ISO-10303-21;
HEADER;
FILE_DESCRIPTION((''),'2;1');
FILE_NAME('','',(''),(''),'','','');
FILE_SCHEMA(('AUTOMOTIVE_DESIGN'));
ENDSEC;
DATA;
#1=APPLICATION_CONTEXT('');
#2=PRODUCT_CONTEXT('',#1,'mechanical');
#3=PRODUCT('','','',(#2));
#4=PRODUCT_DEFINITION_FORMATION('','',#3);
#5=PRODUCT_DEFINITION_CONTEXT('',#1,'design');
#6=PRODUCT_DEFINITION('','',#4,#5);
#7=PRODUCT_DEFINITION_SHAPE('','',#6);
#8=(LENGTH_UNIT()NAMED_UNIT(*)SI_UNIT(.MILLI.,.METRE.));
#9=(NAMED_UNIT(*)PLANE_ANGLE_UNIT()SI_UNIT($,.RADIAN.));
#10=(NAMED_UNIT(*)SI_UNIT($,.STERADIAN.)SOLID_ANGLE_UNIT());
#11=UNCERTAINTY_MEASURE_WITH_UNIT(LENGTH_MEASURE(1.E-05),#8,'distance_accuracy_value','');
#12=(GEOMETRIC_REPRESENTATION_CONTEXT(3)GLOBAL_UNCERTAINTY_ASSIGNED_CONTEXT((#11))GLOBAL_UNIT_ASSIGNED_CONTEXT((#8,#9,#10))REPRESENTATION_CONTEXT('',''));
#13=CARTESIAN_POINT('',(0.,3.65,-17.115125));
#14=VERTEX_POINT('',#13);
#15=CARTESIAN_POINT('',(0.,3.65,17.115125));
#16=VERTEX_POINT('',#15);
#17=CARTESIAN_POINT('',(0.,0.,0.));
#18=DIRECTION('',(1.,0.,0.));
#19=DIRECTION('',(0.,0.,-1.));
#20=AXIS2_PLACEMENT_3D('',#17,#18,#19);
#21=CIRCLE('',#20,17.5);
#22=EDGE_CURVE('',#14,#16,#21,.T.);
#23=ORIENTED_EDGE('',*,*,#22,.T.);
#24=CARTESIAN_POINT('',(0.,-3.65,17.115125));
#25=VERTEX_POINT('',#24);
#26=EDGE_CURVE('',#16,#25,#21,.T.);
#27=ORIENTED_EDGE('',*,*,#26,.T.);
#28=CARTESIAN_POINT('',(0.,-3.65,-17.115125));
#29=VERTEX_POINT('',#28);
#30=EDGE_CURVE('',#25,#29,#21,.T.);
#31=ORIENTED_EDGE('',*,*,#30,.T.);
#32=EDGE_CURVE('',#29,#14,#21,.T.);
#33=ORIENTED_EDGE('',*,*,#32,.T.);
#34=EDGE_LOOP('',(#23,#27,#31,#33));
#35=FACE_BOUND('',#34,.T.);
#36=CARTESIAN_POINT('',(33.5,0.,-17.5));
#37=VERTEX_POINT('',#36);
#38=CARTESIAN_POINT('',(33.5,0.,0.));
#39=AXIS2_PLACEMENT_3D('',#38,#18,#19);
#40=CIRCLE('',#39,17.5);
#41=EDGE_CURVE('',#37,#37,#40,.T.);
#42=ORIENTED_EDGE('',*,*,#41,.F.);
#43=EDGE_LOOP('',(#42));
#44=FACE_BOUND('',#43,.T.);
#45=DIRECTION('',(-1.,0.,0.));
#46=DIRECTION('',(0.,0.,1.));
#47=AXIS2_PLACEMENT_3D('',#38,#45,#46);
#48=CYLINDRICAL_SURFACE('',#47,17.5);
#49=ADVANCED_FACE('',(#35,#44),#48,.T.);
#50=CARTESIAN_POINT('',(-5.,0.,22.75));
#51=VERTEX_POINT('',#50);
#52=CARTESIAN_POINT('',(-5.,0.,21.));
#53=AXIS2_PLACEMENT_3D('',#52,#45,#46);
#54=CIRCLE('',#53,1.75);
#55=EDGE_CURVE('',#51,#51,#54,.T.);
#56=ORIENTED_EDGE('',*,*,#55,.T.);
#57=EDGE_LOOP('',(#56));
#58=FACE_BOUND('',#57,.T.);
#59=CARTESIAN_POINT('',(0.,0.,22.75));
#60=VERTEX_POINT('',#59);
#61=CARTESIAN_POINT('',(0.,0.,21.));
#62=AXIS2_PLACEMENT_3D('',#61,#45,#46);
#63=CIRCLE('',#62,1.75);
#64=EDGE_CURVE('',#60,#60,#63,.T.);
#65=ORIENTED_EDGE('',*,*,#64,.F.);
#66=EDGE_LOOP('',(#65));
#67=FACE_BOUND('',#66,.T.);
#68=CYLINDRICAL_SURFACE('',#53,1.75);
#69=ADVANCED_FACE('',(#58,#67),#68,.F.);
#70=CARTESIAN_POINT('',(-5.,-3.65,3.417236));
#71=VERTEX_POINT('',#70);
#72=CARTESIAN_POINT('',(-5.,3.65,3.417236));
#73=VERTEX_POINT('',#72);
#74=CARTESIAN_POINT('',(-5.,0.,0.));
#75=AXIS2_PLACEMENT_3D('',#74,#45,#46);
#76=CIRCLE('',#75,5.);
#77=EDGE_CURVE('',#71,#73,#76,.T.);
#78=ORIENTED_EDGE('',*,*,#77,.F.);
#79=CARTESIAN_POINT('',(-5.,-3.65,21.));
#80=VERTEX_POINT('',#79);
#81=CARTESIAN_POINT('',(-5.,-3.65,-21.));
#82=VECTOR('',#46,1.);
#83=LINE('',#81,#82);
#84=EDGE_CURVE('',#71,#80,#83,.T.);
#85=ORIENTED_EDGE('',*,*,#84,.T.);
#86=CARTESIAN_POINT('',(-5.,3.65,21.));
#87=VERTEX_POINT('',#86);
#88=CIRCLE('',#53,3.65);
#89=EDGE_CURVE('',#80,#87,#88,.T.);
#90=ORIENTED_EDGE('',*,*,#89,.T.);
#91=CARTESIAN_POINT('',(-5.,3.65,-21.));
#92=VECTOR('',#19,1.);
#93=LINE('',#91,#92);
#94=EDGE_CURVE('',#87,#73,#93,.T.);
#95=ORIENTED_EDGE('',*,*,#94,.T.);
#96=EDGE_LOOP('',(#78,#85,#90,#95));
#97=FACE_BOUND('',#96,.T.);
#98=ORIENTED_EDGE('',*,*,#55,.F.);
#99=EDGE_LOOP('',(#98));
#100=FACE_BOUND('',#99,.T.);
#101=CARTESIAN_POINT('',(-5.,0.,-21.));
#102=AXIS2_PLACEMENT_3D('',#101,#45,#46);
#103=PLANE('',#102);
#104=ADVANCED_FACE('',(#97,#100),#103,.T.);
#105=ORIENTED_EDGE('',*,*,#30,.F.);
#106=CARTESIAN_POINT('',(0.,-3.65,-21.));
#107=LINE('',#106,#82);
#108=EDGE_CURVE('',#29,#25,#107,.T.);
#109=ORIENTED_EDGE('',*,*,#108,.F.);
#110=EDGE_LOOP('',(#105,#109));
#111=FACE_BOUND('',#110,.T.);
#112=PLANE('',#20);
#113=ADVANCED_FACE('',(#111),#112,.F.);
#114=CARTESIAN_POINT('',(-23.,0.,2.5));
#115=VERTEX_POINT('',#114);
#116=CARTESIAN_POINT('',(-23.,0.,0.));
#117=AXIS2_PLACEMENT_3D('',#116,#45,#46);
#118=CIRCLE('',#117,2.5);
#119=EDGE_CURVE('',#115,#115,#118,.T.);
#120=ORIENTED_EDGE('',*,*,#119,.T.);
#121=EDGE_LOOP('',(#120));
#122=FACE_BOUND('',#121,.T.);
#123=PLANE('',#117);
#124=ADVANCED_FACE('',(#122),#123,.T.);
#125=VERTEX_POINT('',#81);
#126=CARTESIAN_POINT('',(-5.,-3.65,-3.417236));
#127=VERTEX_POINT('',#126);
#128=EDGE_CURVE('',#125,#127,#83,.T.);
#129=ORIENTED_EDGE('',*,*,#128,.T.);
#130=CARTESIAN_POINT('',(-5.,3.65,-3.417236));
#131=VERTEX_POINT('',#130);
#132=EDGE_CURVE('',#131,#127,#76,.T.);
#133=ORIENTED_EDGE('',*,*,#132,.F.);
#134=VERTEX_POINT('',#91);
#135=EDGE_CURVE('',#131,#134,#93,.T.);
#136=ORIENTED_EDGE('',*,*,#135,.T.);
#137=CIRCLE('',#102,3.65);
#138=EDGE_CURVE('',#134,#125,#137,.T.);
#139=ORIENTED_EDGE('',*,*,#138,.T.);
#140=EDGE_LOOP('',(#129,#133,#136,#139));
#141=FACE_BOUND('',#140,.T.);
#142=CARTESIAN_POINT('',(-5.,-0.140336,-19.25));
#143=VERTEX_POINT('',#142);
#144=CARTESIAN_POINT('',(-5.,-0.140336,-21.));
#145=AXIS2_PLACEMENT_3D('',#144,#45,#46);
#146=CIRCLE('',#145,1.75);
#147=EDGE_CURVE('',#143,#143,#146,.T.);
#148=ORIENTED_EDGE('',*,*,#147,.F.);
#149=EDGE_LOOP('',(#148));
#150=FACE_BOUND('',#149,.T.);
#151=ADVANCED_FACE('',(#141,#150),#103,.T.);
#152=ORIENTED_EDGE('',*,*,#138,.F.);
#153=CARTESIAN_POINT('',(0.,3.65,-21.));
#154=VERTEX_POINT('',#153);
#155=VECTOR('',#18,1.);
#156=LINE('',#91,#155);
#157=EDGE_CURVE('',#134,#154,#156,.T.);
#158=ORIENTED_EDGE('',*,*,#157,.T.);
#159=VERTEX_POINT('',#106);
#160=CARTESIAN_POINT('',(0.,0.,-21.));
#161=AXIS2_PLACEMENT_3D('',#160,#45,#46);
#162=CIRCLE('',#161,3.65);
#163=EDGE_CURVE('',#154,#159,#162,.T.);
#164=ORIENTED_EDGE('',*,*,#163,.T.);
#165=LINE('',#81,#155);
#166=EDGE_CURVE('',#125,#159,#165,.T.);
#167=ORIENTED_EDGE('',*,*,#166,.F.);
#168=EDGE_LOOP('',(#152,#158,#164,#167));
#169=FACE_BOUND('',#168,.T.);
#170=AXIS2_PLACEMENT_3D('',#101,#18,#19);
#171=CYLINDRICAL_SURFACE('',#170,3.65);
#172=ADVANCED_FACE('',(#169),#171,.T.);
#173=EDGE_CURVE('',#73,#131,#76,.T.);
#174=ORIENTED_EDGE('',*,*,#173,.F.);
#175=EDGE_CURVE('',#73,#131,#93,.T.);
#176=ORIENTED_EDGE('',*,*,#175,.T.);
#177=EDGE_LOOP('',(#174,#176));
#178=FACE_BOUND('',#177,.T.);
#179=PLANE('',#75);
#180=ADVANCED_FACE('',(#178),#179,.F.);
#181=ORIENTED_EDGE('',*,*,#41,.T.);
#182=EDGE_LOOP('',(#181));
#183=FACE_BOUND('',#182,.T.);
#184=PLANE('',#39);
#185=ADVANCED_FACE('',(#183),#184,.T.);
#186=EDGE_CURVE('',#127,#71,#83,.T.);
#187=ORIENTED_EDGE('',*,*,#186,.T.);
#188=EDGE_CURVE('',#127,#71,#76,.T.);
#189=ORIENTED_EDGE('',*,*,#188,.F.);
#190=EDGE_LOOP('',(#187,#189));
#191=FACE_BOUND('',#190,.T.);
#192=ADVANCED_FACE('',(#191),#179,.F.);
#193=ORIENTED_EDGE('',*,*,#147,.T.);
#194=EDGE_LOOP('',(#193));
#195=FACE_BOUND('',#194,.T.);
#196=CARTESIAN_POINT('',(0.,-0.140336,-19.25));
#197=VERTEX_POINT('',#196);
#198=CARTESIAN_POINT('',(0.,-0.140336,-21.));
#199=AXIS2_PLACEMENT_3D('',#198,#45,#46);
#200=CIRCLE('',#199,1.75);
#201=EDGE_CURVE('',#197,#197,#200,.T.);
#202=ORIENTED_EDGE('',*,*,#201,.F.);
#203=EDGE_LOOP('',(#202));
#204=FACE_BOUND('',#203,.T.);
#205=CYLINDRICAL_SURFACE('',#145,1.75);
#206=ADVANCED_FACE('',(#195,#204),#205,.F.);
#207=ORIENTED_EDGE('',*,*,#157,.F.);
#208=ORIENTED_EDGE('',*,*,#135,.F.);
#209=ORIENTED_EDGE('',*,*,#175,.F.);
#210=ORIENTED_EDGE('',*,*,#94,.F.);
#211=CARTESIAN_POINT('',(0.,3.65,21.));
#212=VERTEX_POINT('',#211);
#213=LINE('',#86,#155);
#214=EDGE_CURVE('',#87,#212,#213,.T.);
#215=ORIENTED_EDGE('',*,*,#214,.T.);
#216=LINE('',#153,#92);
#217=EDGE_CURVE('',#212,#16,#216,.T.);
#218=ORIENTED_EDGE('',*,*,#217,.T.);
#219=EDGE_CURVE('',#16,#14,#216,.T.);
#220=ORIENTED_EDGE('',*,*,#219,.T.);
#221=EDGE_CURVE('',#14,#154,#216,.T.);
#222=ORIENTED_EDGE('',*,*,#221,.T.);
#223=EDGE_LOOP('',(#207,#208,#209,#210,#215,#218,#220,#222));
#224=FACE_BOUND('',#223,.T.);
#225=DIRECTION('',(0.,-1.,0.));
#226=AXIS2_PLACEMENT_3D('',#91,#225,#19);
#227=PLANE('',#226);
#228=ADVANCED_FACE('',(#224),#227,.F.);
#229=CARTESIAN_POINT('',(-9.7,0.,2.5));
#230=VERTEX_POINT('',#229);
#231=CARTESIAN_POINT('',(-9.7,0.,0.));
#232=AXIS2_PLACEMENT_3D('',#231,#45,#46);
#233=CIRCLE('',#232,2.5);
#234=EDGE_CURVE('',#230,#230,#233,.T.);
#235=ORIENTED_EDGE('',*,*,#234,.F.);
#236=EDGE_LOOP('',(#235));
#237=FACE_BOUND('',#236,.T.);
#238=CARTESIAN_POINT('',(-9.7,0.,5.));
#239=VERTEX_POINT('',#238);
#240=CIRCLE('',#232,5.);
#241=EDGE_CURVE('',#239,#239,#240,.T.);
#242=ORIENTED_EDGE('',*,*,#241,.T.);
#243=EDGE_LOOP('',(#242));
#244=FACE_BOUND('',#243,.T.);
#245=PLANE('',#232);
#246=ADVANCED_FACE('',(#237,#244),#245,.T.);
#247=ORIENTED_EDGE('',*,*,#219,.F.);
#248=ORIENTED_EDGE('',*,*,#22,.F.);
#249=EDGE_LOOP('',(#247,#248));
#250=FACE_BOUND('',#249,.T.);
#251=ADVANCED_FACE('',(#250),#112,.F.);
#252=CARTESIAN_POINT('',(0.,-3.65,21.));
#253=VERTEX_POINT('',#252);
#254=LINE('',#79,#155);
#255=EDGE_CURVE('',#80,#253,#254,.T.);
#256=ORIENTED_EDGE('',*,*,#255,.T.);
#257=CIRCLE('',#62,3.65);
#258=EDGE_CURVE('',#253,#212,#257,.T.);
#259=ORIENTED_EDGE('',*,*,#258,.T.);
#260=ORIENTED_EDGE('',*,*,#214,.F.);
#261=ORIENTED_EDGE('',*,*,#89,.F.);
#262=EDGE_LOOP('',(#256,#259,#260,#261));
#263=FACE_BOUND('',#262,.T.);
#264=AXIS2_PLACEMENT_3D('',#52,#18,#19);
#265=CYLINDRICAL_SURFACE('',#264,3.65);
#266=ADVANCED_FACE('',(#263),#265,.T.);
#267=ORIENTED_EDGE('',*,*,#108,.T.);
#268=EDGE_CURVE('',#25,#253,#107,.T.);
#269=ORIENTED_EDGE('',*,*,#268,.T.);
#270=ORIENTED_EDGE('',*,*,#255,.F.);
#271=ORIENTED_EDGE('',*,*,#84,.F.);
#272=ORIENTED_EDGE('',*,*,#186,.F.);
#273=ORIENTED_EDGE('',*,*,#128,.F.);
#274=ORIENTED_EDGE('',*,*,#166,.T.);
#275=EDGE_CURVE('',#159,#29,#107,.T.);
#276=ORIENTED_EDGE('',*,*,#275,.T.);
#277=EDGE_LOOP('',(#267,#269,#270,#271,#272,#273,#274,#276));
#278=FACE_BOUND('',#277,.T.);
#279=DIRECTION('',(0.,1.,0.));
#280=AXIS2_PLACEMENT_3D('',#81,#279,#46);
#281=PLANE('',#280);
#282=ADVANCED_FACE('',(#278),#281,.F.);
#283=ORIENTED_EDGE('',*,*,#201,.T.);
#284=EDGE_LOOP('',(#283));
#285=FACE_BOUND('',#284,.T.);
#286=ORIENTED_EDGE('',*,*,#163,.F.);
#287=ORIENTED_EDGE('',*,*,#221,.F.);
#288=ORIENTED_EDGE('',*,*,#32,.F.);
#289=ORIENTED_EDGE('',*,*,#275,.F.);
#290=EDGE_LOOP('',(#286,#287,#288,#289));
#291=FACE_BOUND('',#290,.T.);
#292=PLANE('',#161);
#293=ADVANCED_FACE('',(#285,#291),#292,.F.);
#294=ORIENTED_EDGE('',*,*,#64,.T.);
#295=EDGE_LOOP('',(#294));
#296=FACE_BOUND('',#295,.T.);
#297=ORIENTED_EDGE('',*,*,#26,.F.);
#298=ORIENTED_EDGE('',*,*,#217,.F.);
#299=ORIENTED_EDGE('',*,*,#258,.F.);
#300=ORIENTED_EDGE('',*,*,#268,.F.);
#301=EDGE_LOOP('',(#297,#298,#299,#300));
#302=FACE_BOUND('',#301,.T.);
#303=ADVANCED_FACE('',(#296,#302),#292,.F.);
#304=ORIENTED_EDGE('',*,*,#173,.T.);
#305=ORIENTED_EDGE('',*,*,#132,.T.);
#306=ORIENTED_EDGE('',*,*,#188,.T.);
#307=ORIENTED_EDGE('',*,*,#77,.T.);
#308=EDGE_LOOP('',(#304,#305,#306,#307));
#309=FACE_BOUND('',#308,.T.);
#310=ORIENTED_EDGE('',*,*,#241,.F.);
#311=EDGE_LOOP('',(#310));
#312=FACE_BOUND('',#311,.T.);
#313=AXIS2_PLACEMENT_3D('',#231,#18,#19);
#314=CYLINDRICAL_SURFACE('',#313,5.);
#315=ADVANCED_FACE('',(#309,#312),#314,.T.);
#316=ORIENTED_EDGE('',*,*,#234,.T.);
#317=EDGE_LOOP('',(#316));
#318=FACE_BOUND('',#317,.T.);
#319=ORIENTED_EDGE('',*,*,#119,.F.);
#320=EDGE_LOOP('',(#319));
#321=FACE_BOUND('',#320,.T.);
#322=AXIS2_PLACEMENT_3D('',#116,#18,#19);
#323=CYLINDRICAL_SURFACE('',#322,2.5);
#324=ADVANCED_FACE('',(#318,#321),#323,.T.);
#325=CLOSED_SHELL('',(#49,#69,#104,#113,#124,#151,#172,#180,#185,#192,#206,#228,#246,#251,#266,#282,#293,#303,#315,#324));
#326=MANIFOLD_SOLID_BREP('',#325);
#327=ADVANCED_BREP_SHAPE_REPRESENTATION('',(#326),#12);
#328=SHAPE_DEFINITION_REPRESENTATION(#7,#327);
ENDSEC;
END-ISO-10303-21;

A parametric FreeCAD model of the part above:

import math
import FreeCAD as App
import Part
import Sketcher

V = App.Vector
Q = App.Units.Quantity

doc = App.newDocument("Part")
body = doc.addObject("PartDesign::Body", "Body")

# Sketch on YZ plane
sketch1 = body.newObject("Sketcher::SketchObject", "Sketch")
sketch1.AttachmentSupport = (doc.getObject("YZ_Plane"), [""])
sketch1.MapMode = "FlatFace"
sketch1.addGeometry(Part.Circle(V(0, 0, 0), V(0, 0, 1), 18), False)
sketch1.addConstraint(Sketcher.Constraint("Coincident", 0, 3, -1, 1))
sketch1.addConstraint(Sketcher.Constraint("Diameter", 0, Q("35 mm")))
pad1 = body.newObject("PartDesign::Pad", "Pad")
pad1.Profile = sketch1
pad1.Length = 33.5

# Sketch on YZ plane
sketch2 = body.newObject("Sketcher::SketchObject", "Sketch001")
sketch2.AttachmentSupport = (doc.getObject("YZ_Plane"), [""])
sketch2.MapMode = "FlatFace"
sketch2.addGeometry(Part.LineSegment(V(3.6, 21, 0), V(3.6, -21, 0)), False)
sketch2.addGeometry(Part.ArcOfCircle(Part.Circle(V(0, -21, 0), V(0, 0, 1), 3.6), math.radians(180), math.radians(360)), False)
sketch2.addGeometry(Part.LineSegment(V(-3.6, -21, 0), V(-3.6, 21, 0)), False)
sketch2.addGeometry(Part.ArcOfCircle(Part.Circle(V(0, 21, 0), V(0, 0, 1), 3.6), math.radians(0), math.radians(180)), False)
sketch2.addConstraint(Sketcher.Constraint("Tangent", 0, 2, 1, 2))
sketch2.addConstraint(Sketcher.Constraint("Tangent", 1, 1, 2, 1))
sketch2.addConstraint(Sketcher.Constraint("Tangent", 2, 2, 3, 2))
sketch2.addConstraint(Sketcher.Constraint("Tangent", 3, 1, 0, 1))
sketch2.addConstraint(Sketcher.Constraint("Vertical", 0))
sketch2.addConstraint(Sketcher.Constraint("Vertical", 2))
sketch2.addConstraint(Sketcher.Constraint("Symmetric", 1, 3, 3, 3, -1, 1))
sketch2.addConstraint(Sketcher.Constraint("DistanceY", 0, 2, 0, 1, Q("42 mm")))
sketch2.addConstraint(Sketcher.Constraint("Radius", 1, Q("3.65 mm")))
pad2 = body.newObject("PartDesign::Pad", "Pad001")
pad2.Profile = sketch2
pad2.Length = 5
pad2.Reversed = True

# Sketch on YZ plane
sketch3 = body.newObject("Sketcher::SketchObject", "Sketch002")
sketch3.AttachmentSupport = (doc.getObject("YZ_Plane"), [""])
sketch3.MapMode = "FlatFace"
sketch3.AttachmentOffset = App.Placement(V(0, 0, -5), App.Rotation())
sketch3.addGeometry(Part.Circle(V(-0.1, -21, 0), V(0, 0, 1), 1.8), False)
sketch3.addGeometry(Part.Circle(V(0, 21, 0), V(0, 0, 1), 1.8), False)
sketch3.addConstraint(Sketcher.Constraint("Equal", 0, 1))
sketch3.addConstraint(Sketcher.Constraint("PointOnObject", 1, 3, -2))
sketch3.addConstraint(Sketcher.Constraint("Diameter", 0, Q("3.5 mm")))
sketch3.addConstraint(Sketcher.Constraint("DistanceY", 0, 3, -1, 1, Q("21 mm")))
sketch3.addConstraint(Sketcher.Constraint("DistanceY", -1, 1, 1, 3, Q("21 mm")))
sketch3.addConstraint(Sketcher.Constraint("DistanceX", 0, 3, -1, 1, Q("0.140336 mm")))
doc.recompute()
hole = body.newObject("PartDesign::Hole", "Hole")
hole.Profile = sketch3
hole.ThreadType = "None"
hole.Diameter = 3.5
hole.DepthType = "Dimension"
hole.Depth = 70
hole.DrillPoint = "Angled"
hole.DrillPointAngle = 118
hole.Reversed = True

# Sketch on YZ plane
sketch4 = body.newObject("Sketcher::SketchObject", "Sketch003")
sketch4.AttachmentSupport = (doc.getObject("YZ_Plane"), [""])
sketch4.MapMode = "FlatFace"
sketch4.AttachmentOffset = App.Placement(V(0, 0, -5), App.Rotation())
sketch4.addGeometry(Part.Circle(V(0, 0, 0), V(0, 0, 1), 5), False)
sketch4.addConstraint(Sketcher.Constraint("Coincident", 0, 3, -1, 1))
sketch4.addConstraint(Sketcher.Constraint("Diameter", 0, Q("10 mm")))
pad3 = body.newObject("PartDesign::Pad", "Pad002")
pad3.Profile = sketch4
pad3.Length = 4.7
pad3.Reversed = True

# Sketch on YZ plane
sketch5 = body.newObject("Sketcher::SketchObject", "Sketch004")
sketch5.AttachmentSupport = (doc.getObject("YZ_Plane"), [""])
sketch5.MapMode = "FlatFace"
sketch5.AttachmentOffset = App.Placement(V(0, 0, -9.7), App.Rotation())
sketch5.addGeometry(Part.Circle(V(0, 0, 0), V(0, 0, 1), 2.5), False)
sketch5.addConstraint(Sketcher.Constraint("Coincident", 0, 3, -1, 1))
sketch5.addConstraint(Sketcher.Constraint("Diameter", 0, Q("5 mm")))
pad4 = body.newObject("PartDesign::Pad", "Pad003")
pad4.Profile = sketch5
pad4.Length = 13.3
pad4.Reversed = True

doc.recompute()
